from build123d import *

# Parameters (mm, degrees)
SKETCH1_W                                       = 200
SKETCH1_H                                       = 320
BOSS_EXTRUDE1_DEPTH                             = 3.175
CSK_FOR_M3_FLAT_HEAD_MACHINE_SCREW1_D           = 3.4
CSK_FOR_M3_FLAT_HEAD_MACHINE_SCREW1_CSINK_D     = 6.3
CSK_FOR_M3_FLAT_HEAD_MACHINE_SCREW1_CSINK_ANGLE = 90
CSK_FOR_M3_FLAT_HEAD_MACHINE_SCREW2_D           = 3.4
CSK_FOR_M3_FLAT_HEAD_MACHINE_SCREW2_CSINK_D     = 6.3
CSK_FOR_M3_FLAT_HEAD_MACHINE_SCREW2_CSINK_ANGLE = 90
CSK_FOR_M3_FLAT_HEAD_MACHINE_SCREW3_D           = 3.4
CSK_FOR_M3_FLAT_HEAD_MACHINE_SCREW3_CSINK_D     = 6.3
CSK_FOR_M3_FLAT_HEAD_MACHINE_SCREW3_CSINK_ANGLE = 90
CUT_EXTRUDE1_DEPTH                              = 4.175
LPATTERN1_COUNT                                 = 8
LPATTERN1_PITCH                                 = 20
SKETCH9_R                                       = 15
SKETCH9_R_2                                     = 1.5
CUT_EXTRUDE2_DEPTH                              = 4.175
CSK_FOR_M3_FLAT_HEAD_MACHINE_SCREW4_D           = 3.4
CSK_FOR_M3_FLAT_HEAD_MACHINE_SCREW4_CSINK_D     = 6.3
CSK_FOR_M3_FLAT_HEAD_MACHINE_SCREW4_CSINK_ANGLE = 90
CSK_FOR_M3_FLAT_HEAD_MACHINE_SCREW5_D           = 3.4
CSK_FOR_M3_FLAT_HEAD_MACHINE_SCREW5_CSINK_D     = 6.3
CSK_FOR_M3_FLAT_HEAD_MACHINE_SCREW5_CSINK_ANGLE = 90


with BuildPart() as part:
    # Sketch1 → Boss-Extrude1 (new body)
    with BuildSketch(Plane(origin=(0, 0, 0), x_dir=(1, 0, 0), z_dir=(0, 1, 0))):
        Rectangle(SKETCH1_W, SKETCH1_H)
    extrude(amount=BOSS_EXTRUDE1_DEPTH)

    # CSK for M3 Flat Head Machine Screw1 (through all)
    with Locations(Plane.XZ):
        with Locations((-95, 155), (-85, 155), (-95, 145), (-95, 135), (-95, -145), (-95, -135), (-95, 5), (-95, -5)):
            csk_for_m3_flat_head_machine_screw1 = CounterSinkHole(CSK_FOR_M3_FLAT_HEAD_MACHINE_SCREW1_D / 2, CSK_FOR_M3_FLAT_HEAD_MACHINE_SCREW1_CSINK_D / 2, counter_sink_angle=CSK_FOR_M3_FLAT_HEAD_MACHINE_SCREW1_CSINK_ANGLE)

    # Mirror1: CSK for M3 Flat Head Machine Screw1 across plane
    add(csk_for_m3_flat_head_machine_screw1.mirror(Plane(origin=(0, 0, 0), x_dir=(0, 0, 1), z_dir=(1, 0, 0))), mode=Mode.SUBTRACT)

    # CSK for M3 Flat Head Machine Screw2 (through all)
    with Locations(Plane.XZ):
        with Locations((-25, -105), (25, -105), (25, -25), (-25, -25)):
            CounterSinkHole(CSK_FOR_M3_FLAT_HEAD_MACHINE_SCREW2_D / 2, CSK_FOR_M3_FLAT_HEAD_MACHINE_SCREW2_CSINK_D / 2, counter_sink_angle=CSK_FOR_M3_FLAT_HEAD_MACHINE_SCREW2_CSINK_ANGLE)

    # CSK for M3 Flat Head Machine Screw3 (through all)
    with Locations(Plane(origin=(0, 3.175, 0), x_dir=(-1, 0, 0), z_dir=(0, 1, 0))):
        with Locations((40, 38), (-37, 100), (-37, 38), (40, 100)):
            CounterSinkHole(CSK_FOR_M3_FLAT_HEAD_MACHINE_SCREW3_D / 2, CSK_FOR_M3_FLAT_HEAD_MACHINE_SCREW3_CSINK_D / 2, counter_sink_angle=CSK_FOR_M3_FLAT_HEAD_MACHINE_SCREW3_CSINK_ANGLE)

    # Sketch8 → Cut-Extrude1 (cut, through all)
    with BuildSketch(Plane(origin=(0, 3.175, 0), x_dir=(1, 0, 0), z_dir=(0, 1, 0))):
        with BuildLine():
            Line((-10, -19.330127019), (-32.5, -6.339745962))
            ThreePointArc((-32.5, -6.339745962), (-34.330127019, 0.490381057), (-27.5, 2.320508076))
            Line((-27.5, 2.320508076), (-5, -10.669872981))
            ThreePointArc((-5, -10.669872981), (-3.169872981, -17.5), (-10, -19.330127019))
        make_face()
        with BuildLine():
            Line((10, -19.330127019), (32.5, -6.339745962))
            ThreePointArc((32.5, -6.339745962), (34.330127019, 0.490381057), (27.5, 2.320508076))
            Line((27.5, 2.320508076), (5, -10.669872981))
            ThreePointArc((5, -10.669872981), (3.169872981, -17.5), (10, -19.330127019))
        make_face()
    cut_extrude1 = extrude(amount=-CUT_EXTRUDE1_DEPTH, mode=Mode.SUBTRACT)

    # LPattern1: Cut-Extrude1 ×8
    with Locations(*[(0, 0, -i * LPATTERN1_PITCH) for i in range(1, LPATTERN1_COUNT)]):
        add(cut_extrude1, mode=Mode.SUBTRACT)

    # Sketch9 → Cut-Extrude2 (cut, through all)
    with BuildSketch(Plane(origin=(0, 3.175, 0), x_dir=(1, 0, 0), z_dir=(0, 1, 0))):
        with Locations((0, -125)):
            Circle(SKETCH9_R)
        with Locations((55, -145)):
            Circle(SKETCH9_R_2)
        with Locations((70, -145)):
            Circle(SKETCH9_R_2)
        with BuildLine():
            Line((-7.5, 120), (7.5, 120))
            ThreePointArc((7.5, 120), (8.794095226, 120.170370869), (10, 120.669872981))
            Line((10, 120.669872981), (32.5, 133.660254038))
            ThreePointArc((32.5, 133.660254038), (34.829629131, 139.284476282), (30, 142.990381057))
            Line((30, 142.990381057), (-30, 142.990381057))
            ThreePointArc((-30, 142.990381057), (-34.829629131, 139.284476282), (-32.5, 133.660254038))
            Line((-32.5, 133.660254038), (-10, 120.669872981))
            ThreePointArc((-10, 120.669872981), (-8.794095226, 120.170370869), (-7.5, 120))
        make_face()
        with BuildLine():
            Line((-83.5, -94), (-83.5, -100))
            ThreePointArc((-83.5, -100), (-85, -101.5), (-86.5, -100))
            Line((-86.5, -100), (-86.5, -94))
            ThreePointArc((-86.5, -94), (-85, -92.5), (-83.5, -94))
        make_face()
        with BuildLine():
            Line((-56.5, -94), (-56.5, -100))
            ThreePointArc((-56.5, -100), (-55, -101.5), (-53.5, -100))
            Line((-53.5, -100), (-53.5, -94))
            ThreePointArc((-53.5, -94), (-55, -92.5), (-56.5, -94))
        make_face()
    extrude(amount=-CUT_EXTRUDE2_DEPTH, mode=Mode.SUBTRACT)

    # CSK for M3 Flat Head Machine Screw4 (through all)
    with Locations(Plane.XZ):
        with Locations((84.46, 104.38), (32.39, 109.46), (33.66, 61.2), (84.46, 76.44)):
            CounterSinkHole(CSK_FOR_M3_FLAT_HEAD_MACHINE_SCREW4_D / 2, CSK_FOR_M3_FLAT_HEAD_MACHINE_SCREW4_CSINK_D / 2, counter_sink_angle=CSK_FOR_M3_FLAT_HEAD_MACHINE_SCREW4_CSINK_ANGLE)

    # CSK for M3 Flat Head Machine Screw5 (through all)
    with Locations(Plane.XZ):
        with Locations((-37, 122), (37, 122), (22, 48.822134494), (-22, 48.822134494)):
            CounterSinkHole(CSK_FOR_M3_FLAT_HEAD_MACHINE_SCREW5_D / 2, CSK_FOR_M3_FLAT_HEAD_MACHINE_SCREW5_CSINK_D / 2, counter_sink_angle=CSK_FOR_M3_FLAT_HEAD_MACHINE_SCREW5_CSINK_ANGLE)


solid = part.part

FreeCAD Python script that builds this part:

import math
import FreeCAD as App
import Part
import Sketcher
from FreeCAD import Vector
Q = App.Units.Quantity

doc = App.newDocument("Part")
body = doc.addObject("PartDesign::Body", "Body")

# Sketch on XZ plane
sketch1 = body.newObject("Sketcher::SketchObject", "Sketch")
sketch1.AttachmentSupport = (doc.getObject("XZ_Plane"), [""])
sketch1.MapMode = "FlatFace"
sketch1.addGeometry(Part.LineSegment(Vector(-100, -160, 0), Vector(-100, 160, 0)), False)
sketch1.addGeometry(Part.LineSegment(Vector(-100, 160, 0), Vector(100, 160, 0)), False)
sketch1.addGeometry(Part.LineSegment(Vector(100, 160, 0), Vector(100, -160, 0)), False)
sketch1.addGeometry(Part.LineSegment(Vector(100, -160, 0), Vector(-100, -160, 0)), False)
sketch1.addConstraint(Sketcher.Constraint("Coincident", 0, 2, 1, 1))
sketch1.addConstraint(Sketcher.Constraint("Coincident", 1, 2, 2, 1))
sketch1.addConstraint(Sketcher.Constraint("Coincident", 2, 2, 3, 1))
sketch1.addConstraint(Sketcher.Constraint("Coincident", 3, 2, 0, 1))
sketch1.addConstraint(Sketcher.Constraint("Vertical", 0))
sketch1.addConstraint(Sketcher.Constraint("Horizontal", 1))
sketch1.addConstraint(Sketcher.Constraint("Vertical", 2))
sketch1.addConstraint(Sketcher.Constraint("Horizontal", 3))
sketch1.addConstraint(Sketcher.Constraint("Symmetric", 0, 2, 2, 2, -1, 1))
sketch1.addConstraint(Sketcher.Constraint("DistanceX", 1, 1, 1, 2, 200.0))
sketch1.addConstraint(Sketcher.Constraint("DistanceY", 0, 1, 0, 2, 320.0))
pad1 = body.newObject("PartDesign::Pad", "Pad")
pad1.Profile = sketch1
pad1.Length = 3.175
pad1.Reversed = True

# Sketch on XZ plane
sketch2 = body.newObject("Sketcher::SketchObject", "Sketch001")
sketch2.AttachmentSupport = (doc.getObject("XZ_Plane"), [""])
sketch2.MapMode = "FlatFace"
sketch2.addGeometry(Part.Circle(Vector(-95, 155, 0), Vector(0, 0, 1), 1.7), False)
sketch2.addGeometry(Part.Circle(Vector(-85, 155, 0), Vector(0, 0, 1), 1.7), False)
sketch2.addGeometry(Part.Circle(Vector(-95, 145, 0), Vector(0, 0, 1), 1.7), False)
sketch2.addGeometry(Part.Circle(Vector(-95, 135, 0), Vector(0, 0, 1), 1.7), False)
sketch2.addGeometry(Part.Circle(Vector(-95, -145, 0), Vector(0, 0, 1), 1.7), False)
sketch2.addGeometry(Part.Circle(Vector(-95, -135, 0), Vector(0, 0, 1), 1.7), False)
sketch2.addGeometry(Part.Circle(Vector(-95, 5, 0), Vector(0, 0, 1), 1.7), False)
sketch2.addGeometry(Part.Circle(Vector(-95, -5, 0), Vector(0, 0, 1), 1.7), False)
sketch2.addConstraint(Sketcher.Constraint("Equal", 0, 1))
sketch2.addConstraint(Sketcher.Constraint("Equal", 1, 2))
sketch2.addConstraint(Sketcher.Constraint("Equal", 2, 3))
sketch2.addConstraint(Sketcher.Constraint("Equal", 3, 4))
sketch2.addConstraint(Sketcher.Constraint("Equal", 4, 5))
sketch2.addConstraint(Sketcher.Constraint("Equal", 5, 6))
sketch2.addConstraint(Sketcher.Constraint("Equal", 6, 7))
sketch2.addConstraint(Sketcher.Constraint("Symmetric", 2, 3, 4, 3, -1))
sketch2.addConstraint(Sketcher.Constraint("Symmetric", 3, 3, 5, 3, -1))
sketch2.addConstraint(Sketcher.Constraint("Symmetric", 6, 3, 7, 3, -1))
sketch2.addConstraint(Sketcher.Constraint("Horizontal", 0, 3, 1, 3))
sketch2.addConstraint(Sketcher.Constraint("Vertical", 0, 3, 2, 3))
sketch2.addConstraint(Sketcher.Constraint("Vertical", 2, 3, 3, 3))
sketch2.addConstraint(Sketcher.Constraint("Vertical", 5, 3, 6, 3))
sketch2.addConstraint(Sketcher.Constraint("Diameter", 0, 3.4))
sketch2.addConstraint(Sketcher.Constraint("DistanceX", 0, 3, -1, 1, 95.0))
sketch2.addConstraint(Sketcher.Constraint("DistanceY", -1, 1, 0, 3, 155.0))
sketch2.addConstraint(Sketcher.Constraint("DistanceX", 1, 3, -1, 1, 85.0))
sketch2.addConstraint(Sketcher.Constraint("DistanceY", -1, 1, 2, 3, 145.0))
sketch2.addConstraint(Sketcher.Constraint("DistanceY", -1, 1, 3, 3, 135.0))
sketch2.addConstraint(Sketcher.Constraint("DistanceY", -1, 1, 6, 3, 5.0))
doc.recompute()
hole = body.newObject("PartDesign::Hole", "Hole")
hole.Profile = sketch2
hole.ThreadType = "None"
hole.Diameter = 3.4
hole.DepthType = "ThroughAll"
hole.HoleCutType = "Countersink"
hole.HoleCutDiameter = 6.3
hole.HoleCutCountersinkAngle = 90
doc.recompute()

mirrored = body.newObject("PartDesign::Mirrored", "Mirrored")
mirrored.Originals = [hole]
mirrored.MirrorPlane = (doc.getObject("YZ_Plane"), [""])
body.Tip = mirrored

# Sketch on XZ plane
sketch3 = body.newObject("Sketcher::SketchObject", "Sketch002")
sketch3.AttachmentSupport = (doc.getObject("XZ_Plane"), [""])
sketch3.MapMode = "FlatFace"
sketch3.addGeometry(Part.Circle(Vector(-25, -105, 0), Vector(0, 0, 1), 1.7), False)
sketch3.addGeometry(Part.Circle(Vector(25, -105, 0), Vector(0, 0, 1), 1.7), False)
sketch3.addGeometry(Part.Circle(Vector(25, -25, 0), Vector(0, 0, 1), 1.7), False)
sketch3.addGeometry(Part.Circle(Vector(-25, -25, 0), Vector(0, 0, 1), 1.7), False)
sketch3.addConstraint(Sketcher.Constraint("Equal", 0, 1))
sketch3.addConstraint(Sketcher.Constraint("Equal", 1, 2))
sketch3.addConstraint(Sketcher.Constraint("Equal", 2, 3))
sketch3.addConstraint(Sketcher.Constraint("Symmetric", 0, 3, 1, 3, -2))
sketch3.addConstraint(Sketcher.Constraint("Symmetric", 2, 3, 3, 3, -2))
sketch3.addConstraint(Sketcher.Constraint("Vertical", 1, 3, 2, 3))
sketch3.addConstraint(Sketcher.Constraint("Diameter", 0, 3.4))
sketch3.addConstraint(Sketcher.Constraint("DistanceX", 0, 3, -1, 1, 25.0))
sketch3.addConstraint(Sketcher.Constraint("DistanceY", 0, 3, -1, 1, 105.0))
sketch3.addConstraint(Sketcher.Constraint("DistanceY", 2, 3, -1, 1, 25.0))
doc.recompute()
hole2 = body.newObject("PartDesign::Hole", "Hole001")
hole2.Profile = sketch3
hole2.ThreadType = "None"
hole2.Diameter = 3.4
hole2.DepthType = "ThroughAll"
hole2.HoleCutType = "Countersink"
hole2.HoleCutDiameter = 6.3
hole2.HoleCutCountersinkAngle = 90

# Sketch on XZ plane
sketch4 = body.newObject("Sketcher::SketchObject", "Sketch003")
sketch4.AttachmentSupport = (doc.getObject("XZ_Plane"), [""])
sketch4.MapMode = "FlatFace"
sketch4.AttachmentOffset = App.Placement(Vector(0, 0, -3.175), App.Rotation())
sketch4.addGeometry(Part.Circle(Vector(-40, 38, 0), Vector(0, 0, 1), 1.7), False)
sketch4.addGeometry(Part.Circle(Vector(37, 100, 0), Vector(0, 0, 1), 1.7), False)
sketch4.addGeometry(Part.Circle(Vector(37, 38, 0), Vector(0, 0, 1), 1.7), False)
sketch4.addGeometry(Part.Circle(Vector(-40, 100, 0), Vector(0, 0, 1), 1.7), False)
sketch4.addConstraint(Sketcher.Constraint("Equal", 0, 1))
sketch4.addConstraint(Sketcher.Constraint("Equal", 1, 2))
sketch4.addConstraint(Sketcher.Constraint("Equal", 2, 3))
sketch4.addConstraint(Sketcher.Constraint("Horizontal", 0, 3, 2, 3))
sketch4.addConstraint(Sketcher.Constraint("Horizontal", 1, 3, 3, 3))
sketch4.addConstraint(Sketcher.Constraint("Vertical", 1, 3, 2, 3))
sketch4.addConstraint(Sketcher.Constraint("Vertical", 0, 3, 3, 3))
sketch4.addConstraint(Sketcher.Constraint("Diameter", 0, 3.4))
sketch4.addConstraint(Sketcher.Constraint("DistanceX", 0, 3, -1, 1, 40.0))
sketch4.addConstraint(Sketcher.Constraint("DistanceY", -1, 1, 0, 3, 38.0))
sketch4.addConstraint(Sketcher.Constraint("DistanceX", -1, 1, 1, 3, 37.0))
sketch4.addConstraint(Sketcher.Constraint("DistanceY", -1, 1, 1, 3, 100.0))
doc.recompute()
hole3 = body.newObject("PartDesign::Hole", "Hole002")
hole3.Profile = sketch4
hole3.ThreadType = "None"
hole3.Diameter = 3.4
hole3.DepthType = "ThroughAll"
hole3.HoleCutType = "Countersink"
hole3.HoleCutDiameter = 6.3
hole3.HoleCutCountersinkAngle = 90
hole3.Reversed = True

# Sketch on XZ plane
sketch5 = body.newObject("Sketcher::SketchObject", "Sketch004")
sketch5.AttachmentSupport = (doc.getObject("XZ_Plane"), [""])
sketch5.MapMode = "FlatFace"
sketch5.AttachmentOffset = App.Placement(Vector(0, 0, -3.175), App.Rotation())
sketch5.addGeometry(Part.LineSegment(Vector(-32.5, 6.339746, 0), Vector(-10, 19.330127, 0)), False)
sketch5.addGeometry(Part.ArcOfCircle(Part.Circle(Vector(-7.5, 15, 0), Vector(0, 0, 1), 5), math.radians(-60), math.radians(120)), False)
sketch5.addGeometry(Part.LineSegment(Vector(-5, 10.669873, 0), Vector(-27.5, -2.320508, 0)), False)
sketch5.addGeometry(Part.ArcOfCircle(Part.Circle(Vector(-30, 2.009619, 0), Vector(0, 0, 1), 5), math.radians(120), math.radians(300)), False)
sketch5.addGeometry(Part.LineSegment(Vector(10, 19.330127, 0), Vector(32.5, 6.339746, 0)), False)
sketch5.addGeometry(Part.ArcOfCircle(Part.Circle(Vector(30, 2.009619, 0), Vector(0, 0, 1), 5), math.radians(-120), math.radians(60)), False)
sketch5.addGeometry(Part.LineSegment(Vector(27.5, -2.320508, 0), Vector(5, 10.669873, 0)), False)
sketch5.addGeometry(Part.ArcOfCircle(Part.Circle(Vector(7.5, 15, 0), Vector(0, 0, 1), 5), math.radians(60), math.radians(240)), False)
sketch5.addConstraint(Sketcher.Constraint("Tangent", 0, 2, 1, 2))
sketch5.addConstraint(Sketcher.Constraint("Tangent", 1, 1, 2, 1))
sketch5.addConstraint(Sketcher.Constraint("Tangent", 2, 2, 3, 2))
sketch5.addConstraint(Sketcher.Constraint("Tangent", 3, 1, 0, 1))
sketch5.addConstraint(Sketcher.Constraint("Tangent", 4, 2, 5, 2))
sketch5.addConstraint(Sketcher.Constraint("Tangent", 5, 1, 6, 1))
sketch5.addConstraint(Sketcher.Constraint("Tangent", 6, 2, 7, 2))
sketch5.addConstraint(Sketcher.Constraint("Tangent", 7, 1, 4, 1))
sketch5.addConstraint(Sketcher.Constraint("Equal", 1, 3))
sketch5.addConstraint(Sketcher.Constraint("Equal", 3, 5))
sketch5.addConstraint(Sketcher.Constraint("Equal", 5, 7))
sketch5.addConstraint(Sketcher.Constraint("Symmetric", 3, 3, 5, 3, -2))
sketch5.addConstraint(Sketcher.Constraint("Symmetric", 1, 3, 7, 3, -2))
sketch5.addConstraint(Sketcher.Constraint("Radius", 1, 5.0))
sketch5.addConstraint(Sketcher.Constraint("Angle", 0, Q("30 deg")))
sketch5.addConstraint(Sketcher.Constraint("DistanceY", -1, 1, 1, 3, 15.0))
sketch5.addConstraint(Sketcher.Constraint("DistanceX", 3, 3, -1, 1, 30.0))
sketch5.addConstraint(Sketcher.Constraint("DistanceX", 0, 2, -1, 1, 10.0))
pocket1 = body.newObject("PartDesign::Pocket", "Pocket")
pocket1.Profile = sketch5
pocket1.Type = "ThroughAll"
pocket1.Reversed = True
doc.recompute()

linearpattern = body.newObject("PartDesign::LinearPattern", "LinearPattern")
linearpattern.Originals = [pocket1]
linearpattern.Direction = (doc.getObject("Z_Axis"), [""])
linearpattern.Mode = "offset"
linearpattern.Offset = 20
linearpattern.Occurrences = 8
linearpattern.Reversed = True
body.Tip = linearpattern

# Sketch on XZ plane
sketch6 = body.newObject("Sketcher::SketchObject", "Sketch005")
sketch6.AttachmentSupport = (doc.getObject("XZ_Plane"), [""])
sketch6.MapMode = "FlatFace"
sketch6.AttachmentOffset = App.Placement(Vector(0, 0, -3.175), App.Rotation())
sketch6.addGeometry(Part.Circle(Vector(0, 125, 0), Vector(0, 0, 1), 15), False)
sketch6.addGeometry(Part.Circle(Vector(55, 145, 0), Vector(0, 0, 1), 1.5), False)
sketch6.addGeometry(Part.Circle(Vector(70, 145, 0), Vector(0, 0, 1), 1.5), False)
sketch6.addGeometry(Part.LineSegment(Vector(-7.5, -120, 0), Vector(7.5, -120, 0)), False)
sketch6.addGeometry(Part.ArcOfCircle(Part.Circle(Vector(7.5, -125, 0), Vector(0, 0, 1), 5), math.radians(60), math.radians(90)), False)
sketch6.addGeometry(Part.LineSegment(Vector(10, -120.669873, 0), Vector(32.5, -133.660254, 0)), False)
sketch6.addGeometry(Part.ArcOfCircle(Part.Circle(Vector(30, -137.990381, 0), Vector(0, 0, 1), 5), math.radians(-90), math.radians(60)), False)
sketch6.addGeometry(Part.LineSegment(Vector(30, -142.990381, 0), Vector(-30, -142.990381, 0)), False)
sketch6.addGeometry(Part.ArcOfCircle(Part.Circle(Vector(-30, -137.990381, 0), Vector(0, 0, 1), 5), math.radians(120), math.radians(270)), False)
sketch6.addGeometry(Part.LineSegment(Vector(-32.5, -133.660254, 0), Vector(-10, -120.669873, 0)), False)
sketch6.addGeometry(Part.ArcOfCircle(Part.Circle(Vector(-7.5, -125, 0), Vector(0, 0, 1), 5), math.radians(90), math.radians(120)), False)
sketch6.addGeometry(Part.LineSegment(Vector(-83.5, 100, 0), Vector(-83.5, 94, 0)), False)
sketch6.addGeometry(Part.ArcOfCircle(Part.Circle(Vector(-85, 94, 0), Vector(0, 0, 1), 1.5), math.radians(180), math.radians(360)), False)
sketch6.addGeometry(Part.LineSegment(Vector(-86.5, 94, 0), Vector(-86.5, 100, 0)), False)
sketch6.addGeometry(Part.ArcOfCircle(Part.Circle(Vector(-85, 100, 0), Vector(0, 0, 1), 1.5), math.radians(0), math.radians(180)), False)
sketch6.addGeometry(Part.LineSegment(Vector(-56.5, 94, 0), Vector(-56.5, 100, 0)), False)
sketch6.addGeometry(Part.ArcOfCircle(Part.Circle(Vector(-55, 100, 0), Vector(0, 0, 1), 1.5), math.radians(0), math.radians(180)), False)
sketch6.addGeometry(Part.LineSegment(Vector(-53.5, 100, 0), Vector(-53.5, 94, 0)), False)
sketch6.addGeometry(Part.ArcOfCircle(Part.Circle(Vector(-55, 94, 0), Vector(0, 0, 1), 1.5), math.radians(180), math.radians(360)), False)
sketch6.addConstraint(Sketcher.Constraint("Tangent", 3, 2, 4, 2))
sketch6.addConstraint(Sketcher.Constraint("Tangent", 4, 1, 5, 1))
sketch6.addConstraint(Sketcher.Constraint("Tangent", 5, 2, 6, 2))
sketch6.addConstraint(Sketcher.Constraint("Tangent", 6, 1, 7, 1))
sketch6.addConstraint(Sketcher.Constraint("Tangent", 7, 2, 8, 2))
sketch6.addConstraint(Sketcher.Constraint("Tangent", 8, 1, 9, 1))
sketch6.addConstraint(Sketcher.Constraint("Tangent", 9, 2, 10, 2))
sketch6.addConstraint(Sketcher.Constraint("Tangent", 10, 1, 3, 1))
sketch6.addConstraint(Sketcher.Constraint("Tangent", 11, 2, 12, 2))
sketch6.addConstraint(Sketcher.Constraint("Tangent", 12, 1, 13, 1))
sketch6.addConstraint(Sketcher.Constraint("Tangent", 13, 2, 14, 2))
sketch6.addConstraint(Sketcher.Constraint("Tangent", 14, 1, 11, 1))
sketch6.addConstraint(Sketcher.Constraint("Tangent", 15, 2, 16, 2))
sketch6.addConstraint(Sketcher.Constraint("Tangent", 16, 1, 17, 1))
sketch6.addConstraint(Sketcher.Constraint("Tangent", 17, 2, 18, 2))
sketch6.addConstraint(Sketcher.Constraint("Tangent", 18, 1, 15, 1))
sketch6.addConstraint(Sketcher.Constraint("Horizontal", 3))
sketch6.addConstraint(Sketcher.Constraint("Horizontal", 7))
sketch6.addConstraint(Sketcher.Constraint("Vertical", 11))
sketch6.addConstraint(Sketcher.Constraint("Vertical", 13))
sketch6.addConstraint(Sketcher.Constraint("Vertical", 15))
sketch6.addConstraint(Sketcher.Constraint("Vertical", 17))
sketch6.addConstraint(Sketcher.Constraint("Equal", 1, 2))
sketch6.addConstraint(Sketcher.Constraint("Equal", 4, 6))
sketch6.addConstraint(Sketcher.Constraint("Equal", 6, 8))
sketch6.addConstraint(Sketcher.Constraint("Equal", 8, 10))
sketch6.addConstraint(Sketcher.Constraint("Equal", 2, 12))
sketch6.addConstraint(Sketcher.Constraint("Equal", 14, 16))
sketch6.addConstraint(Sketcher.Constraint("Symmetric", 5, 2, 8, 1, -2))
sketch6.addConstraint(Sketcher.Constraint("PointOnObject", 0, 3, -2))
sketch6.addConstraint(Sketcher.Constraint("Horizontal", 1, 3, 2, 3))
sketch6.addConstraint(Sketcher.Constraint("Horizontal", 14, 3, 16, 3))
sketch6.addConstraint(Sketcher.Constraint("Horizontal", 12, 3, 18, 3))
sketch6.addConstraint(Sketcher.Constraint("Diameter", 0, 30.0))
sketch6.addConstraint(Sketcher.Constraint("Diameter", 1, 3.0))
sketch6.addConstraint(Sketcher.Constraint("Radius", 4, 5.0))
sketch6.addConstraint(Sketcher.Constraint("DistanceX", 3, 1, 3, 2, 15.0))
sketch6.addConstraint(Sketcher.Constraint("DistanceX", 7, 2, 7, 1, 60.0))
sketch6.addConstraint(Sketcher.Constraint("DistanceY", 11, 2, 11, 1, 6.0))
sketch6.addConstraint(Sketcher.Constraint("Angle", 5, Q("-30 deg")))
sketch6.addConstraint(Sketcher.Constraint("DistanceY", -1, 1, 0, 3, 125.0))
sketch6.addConstraint(Sketcher.Constraint("DistanceX", -1, 1, 1, 3, 55.0))
sketch6.addConstraint(Sketcher.Constraint("DistanceY", -1, 1, 1, 3, 145.0))
sketch6.addConstraint(Sketcher.Constraint("DistanceX", -1, 1, 2, 3, 70.0))
sketch6.addConstraint(Sketcher.Constraint("DistanceY", 4, 3, -1, 1, 125.0))
sketch6.addConstraint(Sketcher.Constraint("DistanceX", 12, 3, -1, 1, 85.0))
sketch6.addConstraint(Sketcher.Constraint("DistanceY", -1, 1, 12, 3, 94.0))
sketch6.addConstraint(Sketcher.Constraint("DistanceX", 16, 3, -1, 1, 55.0))
pocket2 = body.newObject("PartDesign::Pocket", "Pocket001")
pocket2.Profile = sketch6
pocket2.Type = "ThroughAll"
pocket2.Reversed = True

# Sketch on XZ plane
sketch7 = body.newObject("Sketcher::SketchObject", "Sketch006")
sketch7.AttachmentSupport = (doc.getObject("XZ_Plane"), [""])
sketch7.MapMode = "FlatFace"
sketch7.addGeometry(Part.Circle(Vector(84.46, 104.38, 0), Vector(0, 0, 1), 1.7), False)
sketch7.addGeometry(Part.Circle(Vector(32.39, 109.46, 0), Vector(0, 0, 1), 1.7), False)
sketch7.addGeometry(Part.Circle(Vector(33.66, 61.2, 0), Vector(0, 0, 1), 1.7), False)
sketch7.addGeometry(Part.Circle(Vector(84.46, 76.44, 0), Vector(0, 0, 1), 1.7), False)
sketch7.addConstraint(Sketcher.Constraint("Equal", 0, 1))
sketch7.addConstraint(Sketcher.Constraint("Equal", 1, 2))
sketch7.addConstraint(Sketcher.Constraint("Equal", 2, 3))
sketch7.addConstraint(Sketcher.Constraint("Vertical", 0, 3, 3, 3))
sketch7.addConstraint(Sketcher.Constraint("Diameter", 0, 3.4))
sketch7.addConstraint(Sketcher.Constraint("DistanceY", -1, 1, 2, 3, 61.2))
sketch7.addConstraint(Sketcher.Constraint("DistanceX", 2, 3, 0, 3, 50.8))
sketch7.addConstraint(Sketcher.Constraint("DistanceX", -1, 1, 0, 3, 84.46))
sketch7.addConstraint(Sketcher.Constraint("DistanceY", -1, 1, 0, 3, 104.38))
sketch7.addConstraint(Sketcher.Constraint("DistanceX", -1, 1, 1, 3, 32.39))
sketch7.addConstraint(Sketcher.Constraint("DistanceY", -1, 1, 1, 3, 109.46))
sketch7.addConstraint(Sketcher.Constraint("DistanceY", -1, 1, 3, 3, 76.44))
doc.recompute()
hole4 = body.newObject("PartDesign::Hole", "Hole003")
hole4.Profile = sketch7
hole4.ThreadType = "None"
hole4.Diameter = 3.4
hole4.DepthType = "ThroughAll"
hole4.HoleCutType = "Countersink"
hole4.HoleCutDiameter = 6.3
hole4.HoleCutCountersinkAngle = 90

# Sketch on XZ plane
sketch8 = body.newObject("Sketcher::SketchObject", "Sketch007")
sketch8.AttachmentSupport = (doc.getObject("XZ_Plane"), [""])
sketch8.MapMode = "FlatFace"
sketch8.addGeometry(Part.Circle(Vector(-37, 122, 0), Vector(0, 0, 1), 1.7), False)
sketch8.addGeometry(Part.Circle(Vector(37, 122, 0), Vector(0, 0, 1), 1.7), False)
sketch8.addGeometry(Part.Circle(Vector(22, 48.822134, 0), Vector(0, 0, 1), 1.7), False)
sketch8.addGeometry(Part.Circle(Vector(-22, 48.822134, 0), Vector(0, 0, 1), 1.7), False)
sketch8.addConstraint(Sketcher.Constraint("Equal", 0, 1))
sketch8.addConstraint(Sketcher.Constraint("Equal", 1, 2))
sketch8.addConstraint(Sketcher.Constraint("Equal", 2, 3))
sketch8.addConstraint(Sketcher.Constraint("Symmetric", 0, 3, 1, 3, -2))
sketch8.addConstraint(Sketcher.Constraint("Symmetric", 2, 3, 3, 3, -2))
sketch8.addConstraint(Sketcher.Constraint("Diameter", 0, 3.4))
sketch8.addConstraint(Sketcher.Constraint("DistanceX", 0, 3, -1, 1, 37.0))
sketch8.addConstraint(Sketcher.Constraint("DistanceY", -1, 1, 0, 3, 122.0))
sketch8.addConstraint(Sketcher.Constraint("DistanceX", -1, 1, 2, 3, 22.0))
sketch8.addConstraint(Sketcher.Constraint("DistanceY", -1, 1, 2, 3, 48.822134))
doc.recompute()
hole5 = body.newObject("PartDesign::Hole", "Hole004")
hole5.Profile = sketch8
hole5.ThreadType = "None"
hole5.Diameter = 3.4
hole5.DepthType = "ThroughAll"
hole5.HoleCutType = "Countersink"
hole5.HoleCutDiameter = 6.3
hole5.HoleCutCountersinkAngle = 90

doc.recompute()
